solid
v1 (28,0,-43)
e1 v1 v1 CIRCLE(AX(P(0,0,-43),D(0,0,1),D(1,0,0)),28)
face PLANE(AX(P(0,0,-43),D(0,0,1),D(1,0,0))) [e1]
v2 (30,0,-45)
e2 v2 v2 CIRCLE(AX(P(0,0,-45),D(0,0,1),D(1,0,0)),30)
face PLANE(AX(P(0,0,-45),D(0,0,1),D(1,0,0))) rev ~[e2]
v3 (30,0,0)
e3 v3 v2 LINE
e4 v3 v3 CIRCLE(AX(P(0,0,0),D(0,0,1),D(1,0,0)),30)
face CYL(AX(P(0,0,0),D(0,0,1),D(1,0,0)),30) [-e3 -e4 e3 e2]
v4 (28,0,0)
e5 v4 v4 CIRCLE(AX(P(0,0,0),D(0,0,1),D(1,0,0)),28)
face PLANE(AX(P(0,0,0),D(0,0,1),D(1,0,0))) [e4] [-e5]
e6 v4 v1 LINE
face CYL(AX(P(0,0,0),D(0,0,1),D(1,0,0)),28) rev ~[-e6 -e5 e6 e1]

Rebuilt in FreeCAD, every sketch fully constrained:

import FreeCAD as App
import Part
import Sketcher
from FreeCAD import Vector
Q = App.Units.Quantity

doc = App.newDocument("Part")
body = doc.addObject("PartDesign::Body", "Body")

sketch1 = body.newObject("Sketcher::SketchObject", "Sketch")
sketch1.AttachmentSupport = (doc.getObject("XY_Plane"), [""])
sketch1.MapMode = "FlatFace"
sketch1.addGeometry(Part.Circle(Vector(0, 0, 0), Vector(0, 0, 1), 30), False)
sketch1.addConstraint([
    Sketcher.Constraint("Coincident", 0, 3, -1, 1),
    Sketcher.Constraint("Diameter", 0, Q("60 mm")),
])
pad1 = body.newObject("PartDesign::Pad", "Pad")
pad1.Profile = sketch1
pad1.Length = 45
pad1.Reversed = True

sketch2 = body.newObject("Sketcher::SketchObject", "Sketch001")
sketch2.AttachmentSupport = (doc.getObject("XY_Plane"), [""])
sketch2.MapMode = "FlatFace"
sketch2.addGeometry(Part.Circle(Vector(0, 0, 0), Vector(0, 0, 1), 28), False)
sketch2.addConstraint([
    Sketcher.Constraint("Coincident", 0, 3, -1, 1),
    Sketcher.Constraint("Diameter", 0, Q("56 mm")),
])
pocket1 = body.newObject("PartDesign::Pocket", "Pocket")
pocket1.Profile = sketch2
pocket1.Length = 43

doc.recompute()
